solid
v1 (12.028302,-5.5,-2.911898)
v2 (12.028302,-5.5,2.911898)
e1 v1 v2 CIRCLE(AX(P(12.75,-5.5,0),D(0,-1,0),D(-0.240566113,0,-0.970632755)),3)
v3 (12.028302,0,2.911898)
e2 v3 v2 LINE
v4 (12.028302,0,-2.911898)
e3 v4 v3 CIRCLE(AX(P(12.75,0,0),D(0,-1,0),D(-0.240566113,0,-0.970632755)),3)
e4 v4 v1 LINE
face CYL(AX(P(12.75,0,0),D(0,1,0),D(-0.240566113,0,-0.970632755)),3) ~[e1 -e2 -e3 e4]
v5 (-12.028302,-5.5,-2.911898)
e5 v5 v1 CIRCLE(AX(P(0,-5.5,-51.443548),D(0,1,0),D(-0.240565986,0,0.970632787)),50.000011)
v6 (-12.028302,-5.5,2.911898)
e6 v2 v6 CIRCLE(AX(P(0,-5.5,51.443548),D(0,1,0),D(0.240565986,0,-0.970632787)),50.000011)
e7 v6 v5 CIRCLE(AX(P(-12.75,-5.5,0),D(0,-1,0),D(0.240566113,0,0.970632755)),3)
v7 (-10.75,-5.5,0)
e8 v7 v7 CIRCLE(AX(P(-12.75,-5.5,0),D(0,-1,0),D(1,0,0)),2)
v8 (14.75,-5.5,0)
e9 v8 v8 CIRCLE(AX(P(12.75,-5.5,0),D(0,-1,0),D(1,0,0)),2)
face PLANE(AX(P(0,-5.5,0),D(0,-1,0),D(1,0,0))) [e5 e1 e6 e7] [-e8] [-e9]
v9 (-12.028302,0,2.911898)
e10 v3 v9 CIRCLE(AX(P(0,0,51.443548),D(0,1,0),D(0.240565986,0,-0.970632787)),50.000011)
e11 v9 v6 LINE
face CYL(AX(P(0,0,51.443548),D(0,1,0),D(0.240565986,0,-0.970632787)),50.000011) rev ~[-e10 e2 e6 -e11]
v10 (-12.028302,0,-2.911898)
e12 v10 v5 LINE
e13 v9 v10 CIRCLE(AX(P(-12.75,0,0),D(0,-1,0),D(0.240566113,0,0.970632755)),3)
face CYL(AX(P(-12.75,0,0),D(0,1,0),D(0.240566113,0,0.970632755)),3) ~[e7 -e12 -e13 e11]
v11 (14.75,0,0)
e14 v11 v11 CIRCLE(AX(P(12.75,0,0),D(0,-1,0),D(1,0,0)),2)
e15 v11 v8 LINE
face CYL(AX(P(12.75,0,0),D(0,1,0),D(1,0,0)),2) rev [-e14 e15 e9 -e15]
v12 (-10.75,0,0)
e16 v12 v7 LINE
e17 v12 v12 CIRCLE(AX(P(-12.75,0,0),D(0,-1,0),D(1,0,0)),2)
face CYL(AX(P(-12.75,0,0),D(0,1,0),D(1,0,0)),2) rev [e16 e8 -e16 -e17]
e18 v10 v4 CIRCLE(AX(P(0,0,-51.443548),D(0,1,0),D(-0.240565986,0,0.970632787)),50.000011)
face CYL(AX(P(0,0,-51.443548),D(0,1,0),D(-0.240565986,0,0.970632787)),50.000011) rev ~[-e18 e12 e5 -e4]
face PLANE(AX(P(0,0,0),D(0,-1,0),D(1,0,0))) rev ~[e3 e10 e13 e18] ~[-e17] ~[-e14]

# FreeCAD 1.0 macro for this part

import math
import FreeCAD as App
import Part
import Sketcher
from FreeCAD import Vector
Q = App.Units.Quantity

doc = App.newDocument("Part")
body = doc.addObject("PartDesign::Body", "Body")

sketch1 = doc.addObject("Sketcher::SketchObject", "Sketch")
body.addObject(sketch1)
sketch1.AttachmentSupport = (doc.XZ_Plane, [""])
sketch1.MapMode = "FlatFace"
sketch1.addGeometry([
    Part.ArcOfCircle(Part.Circle(Vector(0, -51.4, 0), Vector(0, 0, 1), 50), math.radians(76), math.radians(104)),
    Part.ArcOfCircle(Part.Circle(Vector(12.8, 0, 0), Vector(0, 0, 1), 3), math.radians(-104), math.radians(104)),
    Part.ArcOfCircle(Part.Circle(Vector(0, 51.4, 0), Vector(0, 0, 1), 50), math.radians(-104), math.radians(-76)),
    Part.ArcOfCircle(Part.Circle(Vector(-12.8, 0, 0), Vector(0, 0, 1), 3), math.radians(76), math.radians(284)),
    Part.Circle(Vector(-12.8, 0, 0), Vector(0, 0, 1), 2),
    Part.Circle(Vector(12.8, 0, 0), Vector(0, 0, 1), 2),
], False)
sketch1.addConstraint([
    Sketcher.Constraint("Tangent", 0, 1, 1, 1),
    Sketcher.Constraint("Tangent", 1, 2, 2, 2),
    Sketcher.Constraint("Tangent", 2, 1, 3, 1),
    Sketcher.Constraint("Tangent", 3, 2, 0, 2),
    Sketcher.Constraint("Coincident", 4, 3, 3, 3),
    Sketcher.Constraint("Coincident", 5, 3, 1, 3),
    Sketcher.Constraint("Equal", 0, 2),
    Sketcher.Constraint("Equal", 1, 3),
    Sketcher.Constraint("Equal", 4, 5),
    Sketcher.Constraint("Symmetric", 0, 3, 2, 3, -1, 1),
    Sketcher.Constraint("PointOnObject", 0, 3, -2),
    Sketcher.Constraint("Diameter", 4, Q("4 mm")),
    Sketcher.Constraint("Radius", 1, Q("3 mm")),
    Sketcher.Constraint("DistanceX", 3, 3, 1, 3, Q("25.500001 mm")),
    Sketcher.Constraint("Radius", 0, Q("50.000011 mm")),
])
pad1 = doc.addObject("PartDesign::Pad", "Pad")
body.addObject(pad1)
pad1.Profile = sketch1
pad1.Length = 5.5

doc.recompute()
